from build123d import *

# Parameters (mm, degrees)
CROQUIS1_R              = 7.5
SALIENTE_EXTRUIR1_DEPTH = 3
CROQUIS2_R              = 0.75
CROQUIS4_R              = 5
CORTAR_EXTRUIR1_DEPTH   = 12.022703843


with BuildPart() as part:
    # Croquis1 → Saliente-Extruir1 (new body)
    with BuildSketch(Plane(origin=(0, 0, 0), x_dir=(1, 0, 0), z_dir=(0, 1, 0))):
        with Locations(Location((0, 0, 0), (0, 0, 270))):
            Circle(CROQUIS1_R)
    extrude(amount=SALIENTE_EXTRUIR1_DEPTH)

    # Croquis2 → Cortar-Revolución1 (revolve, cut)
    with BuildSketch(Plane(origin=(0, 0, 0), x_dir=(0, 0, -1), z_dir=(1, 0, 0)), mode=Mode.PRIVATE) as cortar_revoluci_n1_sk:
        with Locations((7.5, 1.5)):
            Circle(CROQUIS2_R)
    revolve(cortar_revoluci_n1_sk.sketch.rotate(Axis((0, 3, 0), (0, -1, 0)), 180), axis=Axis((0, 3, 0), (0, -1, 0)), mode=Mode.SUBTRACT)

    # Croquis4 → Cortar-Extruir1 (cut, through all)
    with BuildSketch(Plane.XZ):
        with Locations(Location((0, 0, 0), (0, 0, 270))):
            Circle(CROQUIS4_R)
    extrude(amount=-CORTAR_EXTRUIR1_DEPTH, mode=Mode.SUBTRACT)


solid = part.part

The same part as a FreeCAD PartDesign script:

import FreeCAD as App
import Part
import Sketcher
from FreeCAD import Vector

doc = App.newDocument("Part")
body = doc.addObject("PartDesign::Body", "Body")

# Sketch on XZ plane
sketch1 = body.newObject("Sketcher::SketchObject", "Sketch")
sketch1.AttachmentSupport = (doc.getObject("XZ_Plane"), [""])
sketch1.MapMode = "FlatFace"
sketch1.addGeometry(Part.Circle(Vector(0, 0, 0), Vector(0, 0, 1), 7.5), False)
sketch1.addConstraint([
    Sketcher.Constraint("Coincident", 0, 3, -1, 1),
    Sketcher.Constraint("Diameter", 0, 15.0),
])
pad1 = body.newObject("PartDesign::Pad", "Pad")
pad1.Profile = sketch1
pad1.Length = 3
pad1.Reversed = True

# Sketch on YZ plane
sketch2 = body.newObject("Sketcher::SketchObject", "Sketch001")
sketch2.AttachmentSupport = (doc.getObject("YZ_Plane"), [""])
sketch2.MapMode = "FlatFace"
sketch2.addGeometry(Part.Circle(Vector(1.5, -7.5, 0), Vector(0, 0, 1), 0.75), False)
sketch2.addConstraint([
    Sketcher.Constraint("Diameter", 0, 1.5),
    Sketcher.Constraint("DistanceX", -1, 1, 0, 3, 1.5),
    Sketcher.Constraint("DistanceY", 0, 3, -1, 1, 7.5),
])
groove = body.newObject("PartDesign::Groove", "Groove")
groove.Profile = sketch2
groove.ReferenceAxis = (sketch2, ["H_Axis"])
groove.Angle = 360

# Sketch on XZ plane
sketch3 = body.newObject("Sketcher::SketchObject", "Sketch002")
sketch3.AttachmentSupport = (doc.getObject("XZ_Plane"), [""])
sketch3.MapMode = "FlatFace"
sketch3.addGeometry(Part.Circle(Vector(0, 0, 0), Vector(0, 0, 1), 5), False)
sketch3.addConstraint([
    Sketcher.Constraint("Coincident", 0, 3, -1, 1),
    Sketcher.Constraint("Diameter", 0, 10.0),
])
pocket1 = body.newObject("PartDesign::Pocket", "Pocket")
pocket1.Profile = sketch3
pocket1.Type = "ThroughAll"

doc.recompute()
